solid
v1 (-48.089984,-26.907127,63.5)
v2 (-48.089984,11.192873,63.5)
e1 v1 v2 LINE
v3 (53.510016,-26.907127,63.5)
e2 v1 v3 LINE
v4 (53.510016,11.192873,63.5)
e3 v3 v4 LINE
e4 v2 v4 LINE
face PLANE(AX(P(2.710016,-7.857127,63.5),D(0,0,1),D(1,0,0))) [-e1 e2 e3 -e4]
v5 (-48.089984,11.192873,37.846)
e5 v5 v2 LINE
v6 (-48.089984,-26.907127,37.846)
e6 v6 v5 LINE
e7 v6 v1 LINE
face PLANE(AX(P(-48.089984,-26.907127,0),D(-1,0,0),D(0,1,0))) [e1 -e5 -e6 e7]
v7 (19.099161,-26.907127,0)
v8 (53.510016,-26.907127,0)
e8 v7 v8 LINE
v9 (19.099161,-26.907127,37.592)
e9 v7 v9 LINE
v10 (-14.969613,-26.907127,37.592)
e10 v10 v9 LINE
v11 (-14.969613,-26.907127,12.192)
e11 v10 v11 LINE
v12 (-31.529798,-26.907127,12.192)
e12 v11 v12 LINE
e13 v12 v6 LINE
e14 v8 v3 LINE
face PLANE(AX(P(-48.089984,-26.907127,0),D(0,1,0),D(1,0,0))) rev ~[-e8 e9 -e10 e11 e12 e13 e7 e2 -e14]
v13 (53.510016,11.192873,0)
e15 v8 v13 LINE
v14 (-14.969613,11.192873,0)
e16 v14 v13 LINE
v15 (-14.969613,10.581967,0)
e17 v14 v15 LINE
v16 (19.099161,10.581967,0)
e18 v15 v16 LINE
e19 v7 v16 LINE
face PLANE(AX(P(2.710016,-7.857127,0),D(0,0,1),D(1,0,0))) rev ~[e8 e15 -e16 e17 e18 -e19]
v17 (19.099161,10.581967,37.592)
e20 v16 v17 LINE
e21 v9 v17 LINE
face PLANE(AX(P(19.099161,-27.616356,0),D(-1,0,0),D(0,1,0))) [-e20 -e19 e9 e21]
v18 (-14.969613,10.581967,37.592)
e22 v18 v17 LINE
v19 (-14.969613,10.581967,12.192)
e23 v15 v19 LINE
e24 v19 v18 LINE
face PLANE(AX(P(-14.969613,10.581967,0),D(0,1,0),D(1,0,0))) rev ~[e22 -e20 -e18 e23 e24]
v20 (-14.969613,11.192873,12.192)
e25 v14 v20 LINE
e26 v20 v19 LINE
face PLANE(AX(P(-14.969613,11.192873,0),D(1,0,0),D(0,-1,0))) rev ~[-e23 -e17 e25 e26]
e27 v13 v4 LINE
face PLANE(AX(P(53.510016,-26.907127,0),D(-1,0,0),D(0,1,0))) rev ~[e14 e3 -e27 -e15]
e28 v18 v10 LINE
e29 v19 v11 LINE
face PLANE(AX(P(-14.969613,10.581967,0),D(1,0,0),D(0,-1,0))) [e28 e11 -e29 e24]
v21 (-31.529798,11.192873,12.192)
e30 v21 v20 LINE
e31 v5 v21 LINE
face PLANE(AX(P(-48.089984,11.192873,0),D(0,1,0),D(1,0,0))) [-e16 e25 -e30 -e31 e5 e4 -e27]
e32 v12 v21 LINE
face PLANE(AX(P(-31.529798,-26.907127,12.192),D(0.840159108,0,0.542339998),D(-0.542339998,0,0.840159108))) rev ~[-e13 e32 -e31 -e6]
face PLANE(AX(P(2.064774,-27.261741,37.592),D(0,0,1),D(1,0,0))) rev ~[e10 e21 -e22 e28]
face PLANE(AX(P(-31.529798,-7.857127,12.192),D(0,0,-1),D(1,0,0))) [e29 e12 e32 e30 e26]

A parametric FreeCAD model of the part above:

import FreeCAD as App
import Part
import Sketcher
from FreeCAD import Vector
Q = App.Units.Quantity

doc = App.newDocument("Part")
body = doc.addObject("PartDesign::Body", "Body")

# Sketch on XY plane
sketch1 = body.newObject("Sketcher::SketchObject", "Sketch")
sketch1.AttachmentSupport = (doc.getObject("XY_Plane"), [""])
sketch1.MapMode = "FlatFace"
sketch1.addGeometry([
    Part.LineSegment(Vector(-48, 11, 0), Vector(-48, -27, 0)),
    Part.LineSegment(Vector(-48, -27, 0), Vector(54, -27, 0)),
    Part.LineSegment(Vector(54, -27, 0), Vector(54, 11, 0)),
    Part.LineSegment(Vector(54, 11, 0), Vector(-48, 11, 0)),
], False)
sketch1.addConstraint([
    Sketcher.Constraint("Coincident", 0, 2, 1, 1),
    Sketcher.Constraint("Coincident", 1, 2, 2, 1),
    Sketcher.Constraint("Coincident", 2, 2, 3, 1),
    Sketcher.Constraint("Coincident", 3, 2, 0, 1),
    Sketcher.Constraint("Vertical", 0),
    Sketcher.Constraint("Horizontal", 1),
    Sketcher.Constraint("Vertical", 2),
    Sketcher.Constraint("Horizontal", 3),
    Sketcher.Constraint("DistanceX", 1, 1, 1, 2, Q("4 in")),
    Sketcher.Constraint("DistanceY", 0, 2, 0, 1, Q("1.5 in")),
    Sketcher.Constraint("DistanceX", 0, 2, -1, 1, 48.089984),
    Sketcher.Constraint("DistanceY", 0, 2, -1, 1, 26.907127),
])
pad1 = body.newObject("PartDesign::Pad", "Pad")
pad1.Profile = sketch1
pad1.Length = Q("2.5 in")

# Sketch on XY plane
sketch2 = body.newObject("Sketcher::SketchObject", "Sketch001")
sketch2.AttachmentSupport = (doc.getObject("XY_Plane"), [""])
sketch2.MapMode = "FlatFace"
sketch2.addGeometry([
    Part.LineSegment(Vector(-15, -28, 0), Vector(19, -28, 0)),
    Part.LineSegment(Vector(19, -28, 0), Vector(19, 11, 0)),
    Part.LineSegment(Vector(19, 11, 0), Vector(-15, 11, 0)),
    Part.LineSegment(Vector(-15, 11, 0), Vector(-15, -28, 0)),
], False)
sketch2.addConstraint([
    Sketcher.Constraint("Coincident", 0, 2, 1, 1),
    Sketcher.Constraint("Coincident", 1, 2, 2, 1),
    Sketcher.Constraint("Coincident", 2, 2, 3, 1),
    Sketcher.Constraint("Coincident", 3, 2, 0, 1),
    Sketcher.Constraint("Horizontal", 0),
    Sketcher.Constraint("Vertical", 1),
    Sketcher.Constraint("Horizontal", 2),
    Sketcher.Constraint("Vertical", 3),
    Sketcher.Constraint("DistanceX", 0, 1, 0, 2, 34.068774),
    Sketcher.Constraint("DistanceY", 1, 1, 1, 2, 38.198323),
    Sketcher.Constraint("DistanceX", -1, 1, 0, 2, 19.099161),
    Sketcher.Constraint("DistanceY", 0, 2, -1, 1, 27.616356),
])
pocket1 = body.newObject("PartDesign::Pocket", "Pocket")
pocket1.Profile = sketch2
pocket1.Length = Q("1.48 in")
pocket1.Reversed = True

# Sketch on XY plane
sketch3 = body.newObject("Sketcher::SketchObject", "Sketch002")
sketch3.AttachmentSupport = (doc.getObject("XY_Plane"), [""])
sketch3.MapMode = "FlatFace"
sketch3.addGeometry([
    Part.LineSegment(Vector(-48, 11, 0), Vector(-15, 11, 0)),
    Part.LineSegment(Vector(-15, 11, 0), Vector(-15, -27, 0)),
    Part.LineSegment(Vector(-15, -27, 0), Vector(-48, -27, 0)),
    Part.LineSegment(Vector(-48, -27, 0), Vector(-48, 11, 0)),
], False)
sketch3.addConstraint([
    Sketcher.Constraint("Coincident", 0, 2, 1, 1),
    Sketcher.Constraint("Coincident", 1, 2, 2, 1),
    Sketcher.Constraint("Coincident", 2, 2, 3, 1),
    Sketcher.Constraint("Coincident", 3, 2, 0, 1),
    Sketcher.Constraint("Horizontal", 0),
    Sketcher.Constraint("Vertical", 1),
    Sketcher.Constraint("Horizontal", 2),
    Sketcher.Constraint("Vertical", 3),
    Sketcher.Constraint("DistanceY", 1, 2, 1, 1, Q("1.5 in")),
    Sketcher.Constraint("DistanceX", 0, 1, 0, 2, 33.12037),
    Sketcher.Constraint("DistanceX", 0, 2, -1, 1, 14.969613),
    Sketcher.Constraint("DistanceY", -1, 1, 0, 2, 11.192873),
])
pocket2 = body.newObject("PartDesign::Pocket", "Pocket001")
pocket2.Profile = sketch3
pocket2.Length = Q("0.48 in")
pocket2.Reversed = True

# Sketch on XZ plane
sketch4 = body.newObject("Sketcher::SketchObject", "Sketch003")
sketch4.AttachmentSupport = (doc.getObject("XZ_Plane"), [""])
sketch4.MapMode = "FlatFace"
sketch4.AttachmentOffset = App.Placement(Vector(0, 0, 26.907127), App.Rotation())
sketch4.addGeometry([
    Part.LineSegment(Vector(-48, 12, 0), Vector(-32, 12, 0)),
    Part.LineSegment(Vector(-32, 12, 0), Vector(-48, 38, 0)),
    Part.LineSegment(Vector(-48, 38, 0), Vector(-48, 12, 0)),
], False)
sketch4.addConstraint([
    Sketcher.Constraint("Coincident", 0, 2, 1, 1),
    Sketcher.Constraint("Coincident", 1, 2, 2, 1),
    Sketcher.Constraint("Coincident", 2, 2, 0, 1),
    Sketcher.Constraint("Horizontal", 0),
    Sketcher.Constraint("Vertical", 2),
    Sketcher.Constraint("DistanceY", 2, 2, 2, 1, Q("1.01 in")),
    Sketcher.Constraint("DistanceY", -1, 1, 0, 2, Q("0.48 in")),
    Sketcher.Constraint("DistanceX", 0, 2, -1, 1, 31.529798),
    Sketcher.Constraint("DistanceX", 0, 1, 0, 2, 16.560185),
])
pocket3 = body.newObject("PartDesign::Pocket", "Pocket002")
pocket3.Profile = sketch4
pocket3.Length = Q("2 in")

doc.recompute()
